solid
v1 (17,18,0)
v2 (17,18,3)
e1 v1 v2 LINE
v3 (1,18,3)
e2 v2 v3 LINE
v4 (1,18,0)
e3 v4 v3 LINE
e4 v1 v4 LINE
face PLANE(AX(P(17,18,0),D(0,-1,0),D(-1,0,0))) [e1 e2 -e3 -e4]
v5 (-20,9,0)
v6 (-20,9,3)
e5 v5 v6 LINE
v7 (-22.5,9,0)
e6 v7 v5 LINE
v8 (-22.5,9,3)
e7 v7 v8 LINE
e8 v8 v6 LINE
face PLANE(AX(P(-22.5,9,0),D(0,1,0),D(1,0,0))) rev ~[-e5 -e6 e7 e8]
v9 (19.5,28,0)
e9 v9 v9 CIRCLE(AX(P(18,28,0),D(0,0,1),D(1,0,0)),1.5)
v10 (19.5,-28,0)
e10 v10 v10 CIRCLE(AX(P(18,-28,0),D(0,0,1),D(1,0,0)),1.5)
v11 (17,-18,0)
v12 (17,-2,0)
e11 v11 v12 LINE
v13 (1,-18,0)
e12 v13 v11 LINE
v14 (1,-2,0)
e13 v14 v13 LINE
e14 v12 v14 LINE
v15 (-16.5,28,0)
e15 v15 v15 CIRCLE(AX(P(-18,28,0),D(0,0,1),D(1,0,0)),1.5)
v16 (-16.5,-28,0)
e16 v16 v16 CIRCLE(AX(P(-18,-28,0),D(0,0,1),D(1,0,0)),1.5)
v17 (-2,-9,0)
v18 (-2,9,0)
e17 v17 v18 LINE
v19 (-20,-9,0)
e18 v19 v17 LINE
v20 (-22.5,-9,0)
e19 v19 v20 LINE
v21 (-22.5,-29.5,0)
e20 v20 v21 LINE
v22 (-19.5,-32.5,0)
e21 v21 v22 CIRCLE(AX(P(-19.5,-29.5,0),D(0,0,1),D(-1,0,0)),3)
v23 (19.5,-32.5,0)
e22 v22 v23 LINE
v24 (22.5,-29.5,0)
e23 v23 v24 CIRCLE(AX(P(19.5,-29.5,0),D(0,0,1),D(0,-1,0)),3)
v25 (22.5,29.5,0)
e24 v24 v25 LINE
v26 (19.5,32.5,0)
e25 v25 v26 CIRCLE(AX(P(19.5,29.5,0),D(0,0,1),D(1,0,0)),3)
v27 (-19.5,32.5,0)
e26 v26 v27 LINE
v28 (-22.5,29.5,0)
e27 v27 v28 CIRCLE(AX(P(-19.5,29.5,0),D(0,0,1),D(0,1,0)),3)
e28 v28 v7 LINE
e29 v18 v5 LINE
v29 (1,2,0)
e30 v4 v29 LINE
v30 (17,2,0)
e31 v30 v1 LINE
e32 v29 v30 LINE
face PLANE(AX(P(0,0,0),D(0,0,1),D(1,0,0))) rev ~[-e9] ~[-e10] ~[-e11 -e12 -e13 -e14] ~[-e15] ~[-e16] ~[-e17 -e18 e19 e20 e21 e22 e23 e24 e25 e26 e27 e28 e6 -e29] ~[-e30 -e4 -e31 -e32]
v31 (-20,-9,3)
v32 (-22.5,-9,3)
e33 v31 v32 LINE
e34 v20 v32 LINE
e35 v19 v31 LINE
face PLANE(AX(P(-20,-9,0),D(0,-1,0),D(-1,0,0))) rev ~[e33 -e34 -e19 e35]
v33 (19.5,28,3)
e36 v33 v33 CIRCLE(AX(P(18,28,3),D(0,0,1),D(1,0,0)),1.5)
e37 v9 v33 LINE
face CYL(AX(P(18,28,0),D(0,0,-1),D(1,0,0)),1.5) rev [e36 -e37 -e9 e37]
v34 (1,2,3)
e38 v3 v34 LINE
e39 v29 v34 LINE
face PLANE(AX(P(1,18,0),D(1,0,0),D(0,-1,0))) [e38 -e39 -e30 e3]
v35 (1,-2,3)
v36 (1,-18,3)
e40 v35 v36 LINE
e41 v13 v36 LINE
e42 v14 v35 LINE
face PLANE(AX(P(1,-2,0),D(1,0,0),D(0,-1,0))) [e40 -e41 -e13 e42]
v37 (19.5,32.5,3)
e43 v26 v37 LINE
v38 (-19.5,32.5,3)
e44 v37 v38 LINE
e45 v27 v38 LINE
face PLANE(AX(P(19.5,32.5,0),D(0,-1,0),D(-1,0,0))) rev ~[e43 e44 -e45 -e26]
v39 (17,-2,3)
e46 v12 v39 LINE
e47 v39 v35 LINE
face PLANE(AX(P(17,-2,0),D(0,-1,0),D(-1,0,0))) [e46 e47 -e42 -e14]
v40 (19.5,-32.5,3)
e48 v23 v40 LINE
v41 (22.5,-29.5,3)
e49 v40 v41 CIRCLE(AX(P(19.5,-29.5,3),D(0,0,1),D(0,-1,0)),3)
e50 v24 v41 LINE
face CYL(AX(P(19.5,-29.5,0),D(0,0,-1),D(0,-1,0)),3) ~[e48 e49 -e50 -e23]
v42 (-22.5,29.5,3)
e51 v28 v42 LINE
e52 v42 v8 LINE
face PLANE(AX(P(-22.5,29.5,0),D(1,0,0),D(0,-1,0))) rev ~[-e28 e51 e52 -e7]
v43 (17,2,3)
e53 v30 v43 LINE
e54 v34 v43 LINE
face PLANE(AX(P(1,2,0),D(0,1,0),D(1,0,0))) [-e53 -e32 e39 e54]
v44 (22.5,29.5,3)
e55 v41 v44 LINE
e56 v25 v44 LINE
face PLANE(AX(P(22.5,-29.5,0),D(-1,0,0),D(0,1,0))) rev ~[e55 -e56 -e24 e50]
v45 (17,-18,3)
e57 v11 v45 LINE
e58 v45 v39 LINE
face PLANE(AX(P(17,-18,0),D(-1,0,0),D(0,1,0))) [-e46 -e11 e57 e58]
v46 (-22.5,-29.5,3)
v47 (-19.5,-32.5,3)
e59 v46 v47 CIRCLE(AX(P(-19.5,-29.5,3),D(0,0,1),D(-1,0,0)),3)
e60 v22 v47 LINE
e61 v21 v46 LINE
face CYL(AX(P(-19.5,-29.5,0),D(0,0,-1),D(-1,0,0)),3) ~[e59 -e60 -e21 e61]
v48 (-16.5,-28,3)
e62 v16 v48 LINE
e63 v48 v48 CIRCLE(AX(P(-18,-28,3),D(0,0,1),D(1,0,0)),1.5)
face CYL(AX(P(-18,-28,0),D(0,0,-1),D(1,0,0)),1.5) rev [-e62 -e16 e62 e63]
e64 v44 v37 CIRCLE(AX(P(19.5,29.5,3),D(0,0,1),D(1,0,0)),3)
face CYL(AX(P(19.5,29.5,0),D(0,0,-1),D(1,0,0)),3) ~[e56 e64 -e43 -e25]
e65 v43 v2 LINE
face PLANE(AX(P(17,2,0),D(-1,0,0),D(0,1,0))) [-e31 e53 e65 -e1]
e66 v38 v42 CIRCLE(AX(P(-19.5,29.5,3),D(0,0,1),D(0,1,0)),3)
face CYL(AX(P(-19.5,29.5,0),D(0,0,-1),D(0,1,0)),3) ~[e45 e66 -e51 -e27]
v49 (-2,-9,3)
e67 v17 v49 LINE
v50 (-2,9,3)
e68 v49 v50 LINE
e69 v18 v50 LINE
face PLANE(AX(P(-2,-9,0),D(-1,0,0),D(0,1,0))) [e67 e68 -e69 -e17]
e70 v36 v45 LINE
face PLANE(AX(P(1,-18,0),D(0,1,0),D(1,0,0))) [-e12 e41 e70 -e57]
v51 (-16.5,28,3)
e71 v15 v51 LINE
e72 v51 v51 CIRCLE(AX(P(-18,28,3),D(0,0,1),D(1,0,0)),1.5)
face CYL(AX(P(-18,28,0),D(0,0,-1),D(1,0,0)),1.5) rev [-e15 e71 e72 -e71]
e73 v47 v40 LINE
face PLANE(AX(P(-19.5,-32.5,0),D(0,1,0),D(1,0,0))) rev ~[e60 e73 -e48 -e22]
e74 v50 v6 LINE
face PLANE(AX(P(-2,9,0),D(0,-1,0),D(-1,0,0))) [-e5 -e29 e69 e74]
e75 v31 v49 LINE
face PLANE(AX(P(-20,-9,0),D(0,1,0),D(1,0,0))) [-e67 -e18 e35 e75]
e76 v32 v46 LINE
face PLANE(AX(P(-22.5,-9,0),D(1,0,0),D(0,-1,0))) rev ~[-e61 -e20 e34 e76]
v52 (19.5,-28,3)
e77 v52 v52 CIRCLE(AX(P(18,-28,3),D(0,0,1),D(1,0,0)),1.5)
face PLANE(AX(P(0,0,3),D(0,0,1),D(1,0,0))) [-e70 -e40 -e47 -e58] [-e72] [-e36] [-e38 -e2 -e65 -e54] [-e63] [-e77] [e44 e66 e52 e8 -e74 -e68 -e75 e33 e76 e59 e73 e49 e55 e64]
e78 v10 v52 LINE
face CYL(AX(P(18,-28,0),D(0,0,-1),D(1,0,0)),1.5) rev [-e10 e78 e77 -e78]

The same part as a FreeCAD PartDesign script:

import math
import FreeCAD as App
import Part
import Sketcher
from FreeCAD import Vector
Q = App.Units.Quantity

doc = App.newDocument("Part")
params = doc.addObject("Spreadsheet::Sheet", "Params")
for row, (alias, value) in enumerate([
    ("sketch1_diameter", "3 mm"),
    ("sketch1_radius", "3 mm"),
    ("sketch1_width", "39 mm"),
    ("sketch1_width2", "16 mm"),
    ("sketch1_height", "59 mm"),
    ("pad1_length", "3 mm"),
], start=1):
    params.set(f"A{row}", alias)
    params.set(f"B{row}", "=" + value)
    params.setAlias(f"B{row}", alias)

body = doc.addObject("PartDesign::Body", "Body")

sketch1 = body.newObject("Sketcher::SketchObject", "Sketch")
sketch1.AttachmentSupport = (doc.getObject("XY_Plane"), [""])
sketch1.MapMode = "FlatFace"
sketch1.addGeometry([
    Part.LineSegment(Vector(22.5, -29.5, 0), Vector(22.5, 29.5, 0)),
    Part.ArcOfCircle(Part.Circle(Vector(19.5, 29.5, 0), Vector(0, 0, 1), 3), math.radians(0), math.radians(90)),
    Part.LineSegment(Vector(19.5, 32.5, 0), Vector(-19.5, 32.5, 0)),
    Part.ArcOfCircle(Part.Circle(Vector(-19.5, 29.5, 0), Vector(0, 0, 1), 3), math.radians(90), math.radians(180)),
    Part.LineSegment(Vector(-22.5, 29.5, 0), Vector(-22.5, 9, 0)),
    Part.LineSegment(Vector(-22.5, 9, 0), Vector(-2, 9, 0)),
    Part.LineSegment(Vector(-2, 9, 0), Vector(-2, -9, 0)),
    Part.LineSegment(Vector(-2, -9, 0), Vector(-22.5, -9, 0)),
    Part.LineSegment(Vector(-22.5, -9, 0), Vector(-22.5, -29.5, 0)),
    Part.ArcOfCircle(Part.Circle(Vector(-19.5, -29.5, 0), Vector(0, 0, 1), 3), math.radians(180), math.radians(270)),
    Part.LineSegment(Vector(-19.5, -32.5, 0), Vector(19.5, -32.5, 0)),
    Part.ArcOfCircle(Part.Circle(Vector(19.5, -29.5, 0), Vector(0, 0, 1), 3), math.radians(-90), math.radians(0)),
    Part.Circle(Vector(-18, -28, 0), Vector(0, 0, 1), 1.5),
    Part.Circle(Vector(18, -28, 0), Vector(0, 0, 1), 1.5),
    Part.LineSegment(Vector(1, -18, 0), Vector(1, -2, 0)),
    Part.LineSegment(Vector(1, -2, 0), Vector(17, -2, 0)),
    Part.LineSegment(Vector(17, -2, 0), Vector(17, -18, 0)),
    Part.LineSegment(Vector(17, -18, 0), Vector(1, -18, 0)),
    Part.Circle(Vector(-18, 28, 0), Vector(0, 0, 1), 1.5),
    Part.LineSegment(Vector(1, 2, 0), Vector(1, 18, 0)),
    Part.LineSegment(Vector(1, 18, 0), Vector(17, 18, 0)),
    Part.LineSegment(Vector(17, 18, 0), Vector(17, 2, 0)),
    Part.LineSegment(Vector(17, 2, 0), Vector(1, 2, 0)),
    Part.Circle(Vector(18, 28, 0), Vector(0, 0, 1), 1.5),
], False)
sketch1.addConstraint([
    Sketcher.Constraint("Tangent", 0, 2, 1, 1),
    Sketcher.Constraint("Tangent", 1, 2, 2, 1),
    Sketcher.Constraint("Tangent", 2, 2, 3, 1),
    Sketcher.Constraint("Tangent", 3, 2, 4, 1),
    Sketcher.Constraint("Coincident", 4, 2, 5, 1),
    Sketcher.Constraint("Coincident", 5, 2, 6, 1),
    Sketcher.Constraint("Coincident", 6, 2, 7, 1),
    Sketcher.Constraint("Coincident", 7, 2, 8, 1),
    Sketcher.Constraint("Tangent", 8, 2, 9, 1),
    Sketcher.Constraint("Tangent", 9, 2, 10, 1),
    Sketcher.Constraint("Tangent", 10, 2, 11, 1),
    Sketcher.Constraint("Tangent", 11, 2, 0, 1),
    Sketcher.Constraint("Coincident", 14, 2, 15, 1),
    Sketcher.Constraint("Coincident", 15, 2, 16, 1),
    Sketcher.Constraint("Coincident", 16, 2, 17, 1),
    Sketcher.Constraint("Coincident", 17, 2, 14, 1),
    Sketcher.Constraint("Coincident", 19, 2, 20, 1),
    Sketcher.Constraint("Coincident", 20, 2, 21, 1),
    Sketcher.Constraint("Coincident", 21, 2, 22, 1),
    Sketcher.Constraint("Coincident", 22, 2, 19, 1),
    Sketcher.Constraint("Vertical", 0),
    Sketcher.Constraint("Horizontal", 2),
    Sketcher.Constraint("Vertical", 4),
    Sketcher.Constraint("Horizontal", 5),
    Sketcher.Constraint("Vertical", 6),
    Sketcher.Constraint("Horizontal", 7),
    Sketcher.Constraint("Vertical", 8),
    Sketcher.Constraint("Horizontal", 10),
    Sketcher.Constraint("Vertical", 14),
    Sketcher.Constraint("Horizontal", 15),
    Sketcher.Constraint("Vertical", 16),
    Sketcher.Constraint("Horizontal", 17),
    Sketcher.Constraint("Vertical", 19),
    Sketcher.Constraint("Horizontal", 20),
    Sketcher.Constraint("Vertical", 21),
    Sketcher.Constraint("Horizontal", 22),
    Sketcher.Constraint("Equal", 1, 3),
    Sketcher.Constraint("Equal", 3, 9),
    Sketcher.Constraint("Equal", 9, 11),
    Sketcher.Constraint("Equal", 12, 13),
    Sketcher.Constraint("Equal", 13, 18),
    Sketcher.Constraint("Equal", 18, 23),
    Sketcher.Constraint("Symmetric", 1, 3, 9, 3, -1, 1),
    Sketcher.Constraint("Symmetric", 13, 3, 18, 3, -1, 1),
    Sketcher.Constraint("Symmetric", 12, 3, 23, 3, -1, 1),
    Sketcher.Constraint("Symmetric", 12, 3, 13, 3, -2),
    Sketcher.Constraint("Symmetric", 4, 2, 7, 2, -1),
    Sketcher.Constraint("Symmetric", 17, 2, 19, 2, -1),
    Sketcher.Constraint("Symmetric", 15, 2, 21, 2, -1),
    Sketcher.Constraint("Equal", 7, 4),
    Sketcher.Constraint("Equal", 22, 14),
    Sketcher.Constraint("Diameter", 12, Q("3 mm")),
    Sketcher.Constraint("Radius", 1, Q("3 mm")),
    Sketcher.Constraint("DistanceX", 2, 2, 2, 1, Q("39 mm")),
    Sketcher.Constraint("DistanceX", 15, 1, 15, 2, Q("16 mm")),
    Sketcher.Constraint("DistanceY", 0, 1, 0, 2, Q("59 mm")),
    Sketcher.Constraint("DistanceY", 6, 2, 6, 1, Q("18 mm")),
    Sketcher.Constraint("DistanceX", 12, 3, -1, 1, Q("18 mm")),
    Sketcher.Constraint("DistanceY", 12, 3, -1, 1, Q("28 mm")),
    Sketcher.Constraint("DistanceX", -1, 1, 14, 2, Q("1 mm")),
    Sketcher.Constraint("DistanceY", 14, 2, -1, 1, Q("2 mm")),
])
sketch1.setExpression("Constraints[51]", "Params.sketch1_diameter")
sketch1.setExpression("Constraints[52]", "Params.sketch1_radius")
sketch1.setExpression("Constraints[53]", "Params.sketch1_width")
sketch1.setExpression("Constraints[54]", "Params.sketch1_width2")
sketch1.setExpression("Constraints[55]", "Params.sketch1_height")
pad1 = body.newObject("PartDesign::Pad", "Pad")
pad1.Profile = sketch1
pad1.setExpression("Length", "Params.pad1_length")

doc.recompute()
